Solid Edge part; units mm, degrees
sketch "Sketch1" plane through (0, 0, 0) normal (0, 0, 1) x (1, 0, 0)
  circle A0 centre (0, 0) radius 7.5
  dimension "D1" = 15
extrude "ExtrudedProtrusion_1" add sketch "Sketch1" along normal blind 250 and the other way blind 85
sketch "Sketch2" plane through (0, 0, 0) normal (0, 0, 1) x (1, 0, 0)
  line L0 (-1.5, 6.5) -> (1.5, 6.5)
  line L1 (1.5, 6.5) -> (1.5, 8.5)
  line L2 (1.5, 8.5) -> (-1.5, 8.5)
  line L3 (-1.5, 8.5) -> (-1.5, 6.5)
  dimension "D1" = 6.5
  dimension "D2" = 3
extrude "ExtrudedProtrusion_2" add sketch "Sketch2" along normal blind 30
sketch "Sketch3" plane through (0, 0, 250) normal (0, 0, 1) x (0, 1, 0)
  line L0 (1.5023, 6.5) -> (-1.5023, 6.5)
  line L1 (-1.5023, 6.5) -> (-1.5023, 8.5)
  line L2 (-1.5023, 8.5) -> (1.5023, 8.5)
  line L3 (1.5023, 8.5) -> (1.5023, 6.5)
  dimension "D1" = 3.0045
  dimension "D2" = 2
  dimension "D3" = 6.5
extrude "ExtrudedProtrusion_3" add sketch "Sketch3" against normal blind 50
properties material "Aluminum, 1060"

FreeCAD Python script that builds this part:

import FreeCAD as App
import Part
import Sketcher
from FreeCAD import Vector
Q = App.Units.Quantity

doc = App.newDocument("Part")
body = doc.addObject("PartDesign::Body", "Body")

# Sketch on XY plane
sketch1 = body.newObject("Sketcher::SketchObject", "Sketch")
sketch1.AttachmentSupport = (doc.getObject("XY_Plane"), [""])
sketch1.MapMode = "FlatFace"
sketch1.addGeometry(Part.Circle(Vector(0, 0, 0), Vector(0, 0, 1), 8), False)
sketch1.addConstraint(Sketcher.Constraint("Coincident", 0, 3, -1, 1))
sketch1.addConstraint(Sketcher.Constraint("Diameter", 0, Q("15 mm")))
pad1 = body.newObject("PartDesign::Pad", "Pad")
pad1.Profile = sketch1
pad1.Type = "TwoLengths"
pad1.Length = 250
pad1.Length2 = 85

# Sketch on XY plane
sketch2 = body.newObject("Sketcher::SketchObject", "Sketch001")
sketch2.AttachmentSupport = (doc.getObject("XY_Plane"), [""])
sketch2.MapMode = "FlatFace"
sketch2.addGeometry(Part.LineSegment(Vector(-1.5, 8.5, 0), Vector(-1.5, 6.5, 0)), False)
sketch2.addGeometry(Part.LineSegment(Vector(-1.5, 6.5, 0), Vector(1.5, 6.5, 0)), False)
sketch2.addGeometry(Part.LineSegment(Vector(1.5, 6.5, 0), Vector(1.5, 8.5, 0)), False)
sketch2.addGeometry(Part.LineSegment(Vector(1.5, 8.5, 0), Vector(-1.5, 8.5, 0)), False)
sketch2.addConstraint(Sketcher.Constraint("Coincident", 0, 2, 1, 1))
sketch2.addConstraint(Sketcher.Constraint("Coincident", 1, 2, 2, 1))
sketch2.addConstraint(Sketcher.Constraint("Coincident", 2, 2, 3, 1))
sketch2.addConstraint(Sketcher.Constraint("Coincident", 3, 2, 0, 1))
sketch2.addConstraint(Sketcher.Constraint("Vertical", 0))
sketch2.addConstraint(Sketcher.Constraint("Horizontal", 1))
sketch2.addConstraint(Sketcher.Constraint("Vertical", 2))
sketch2.addConstraint(Sketcher.Constraint("Horizontal", 3))
sketch2.addConstraint(Sketcher.Constraint("DistanceX", 0, 2, -1, 1, Q("1.5 mm")))
sketch2.addConstraint(Sketcher.Constraint("DistanceX", -1, 1, 1, 2, Q("1.5 mm")))
sketch2.addConstraint(Sketcher.Constraint("DistanceY", 0, 2, 0, 1, Q("2 mm")))
sketch2.addConstraint(Sketcher.Constraint("DistanceY", -1, 1, 0, 2, Q("6.5 mm")))
pad2 = body.newObject("PartDesign::Pad", "Pad001")
pad2.Profile = sketch2
pad2.Length = 30

# Sketch on XY plane
sketch3 = body.newObject("Sketcher::SketchObject", "Sketch002")
sketch3.AttachmentSupport = (doc.getObject("XY_Plane"), [""])
sketch3.MapMode = "FlatFace"
sketch3.AttachmentOffset = App.Placement(Vector(0, 0, 250), App.Rotation())
sketch3.addGeometry(Part.LineSegment(Vector(-6.5, -1.5, 0), Vector(-6.5, 1.5, 0)), False)
sketch3.addGeometry(Part.LineSegment(Vector(-6.5, 1.5, 0), Vector(-8.5, 1.5, 0)), False)
sketch3.addGeometry(Part.LineSegment(Vector(-8.5, 1.5, 0), Vector(-8.5, -1.5, 0)), False)
sketch3.addGeometry(Part.LineSegment(Vector(-8.5, -1.5, 0), Vector(-6.5, -1.5, 0)), False)
sketch3.addConstraint(Sketcher.Constraint("Coincident", 0, 2, 1, 1))
sketch3.addConstraint(Sketcher.Constraint("Coincident", 1, 2, 2, 1))
sketch3.addConstraint(Sketcher.Constraint("Coincident", 2, 2, 3, 1))
sketch3.addConstraint(Sketcher.Constraint("Coincident", 3, 2, 0, 1))
sketch3.addConstraint(Sketcher.Constraint("Vertical", 0))
sketch3.addConstraint(Sketcher.Constraint("Horizontal", 1))
sketch3.addConstraint(Sketcher.Constraint("Vertical", 2))
sketch3.addConstraint(Sketcher.Constraint("Horizontal", 3))
sketch3.addConstraint(Sketcher.Constraint("DistanceX", 1, 2, 1, 1, Q("2 mm")))
sketch3.addConstraint(Sketcher.Constraint("DistanceY", -1, 1, 0, 2, Q("1.5023 mm")))
sketch3.addConstraint(Sketcher.Constraint("DistanceY", 2, 2, -1, 1, Q("1.5023 mm")))
sketch3.addConstraint(Sketcher.Constraint("DistanceX", 0, 2, -1, 1, Q("6.5 mm")))
pad3 = body.newObject("PartDesign::Pad", "Pad002")
pad3.Profile = sketch3
pad3.Length = 50
pad3.Reversed = True

doc.recompute()
